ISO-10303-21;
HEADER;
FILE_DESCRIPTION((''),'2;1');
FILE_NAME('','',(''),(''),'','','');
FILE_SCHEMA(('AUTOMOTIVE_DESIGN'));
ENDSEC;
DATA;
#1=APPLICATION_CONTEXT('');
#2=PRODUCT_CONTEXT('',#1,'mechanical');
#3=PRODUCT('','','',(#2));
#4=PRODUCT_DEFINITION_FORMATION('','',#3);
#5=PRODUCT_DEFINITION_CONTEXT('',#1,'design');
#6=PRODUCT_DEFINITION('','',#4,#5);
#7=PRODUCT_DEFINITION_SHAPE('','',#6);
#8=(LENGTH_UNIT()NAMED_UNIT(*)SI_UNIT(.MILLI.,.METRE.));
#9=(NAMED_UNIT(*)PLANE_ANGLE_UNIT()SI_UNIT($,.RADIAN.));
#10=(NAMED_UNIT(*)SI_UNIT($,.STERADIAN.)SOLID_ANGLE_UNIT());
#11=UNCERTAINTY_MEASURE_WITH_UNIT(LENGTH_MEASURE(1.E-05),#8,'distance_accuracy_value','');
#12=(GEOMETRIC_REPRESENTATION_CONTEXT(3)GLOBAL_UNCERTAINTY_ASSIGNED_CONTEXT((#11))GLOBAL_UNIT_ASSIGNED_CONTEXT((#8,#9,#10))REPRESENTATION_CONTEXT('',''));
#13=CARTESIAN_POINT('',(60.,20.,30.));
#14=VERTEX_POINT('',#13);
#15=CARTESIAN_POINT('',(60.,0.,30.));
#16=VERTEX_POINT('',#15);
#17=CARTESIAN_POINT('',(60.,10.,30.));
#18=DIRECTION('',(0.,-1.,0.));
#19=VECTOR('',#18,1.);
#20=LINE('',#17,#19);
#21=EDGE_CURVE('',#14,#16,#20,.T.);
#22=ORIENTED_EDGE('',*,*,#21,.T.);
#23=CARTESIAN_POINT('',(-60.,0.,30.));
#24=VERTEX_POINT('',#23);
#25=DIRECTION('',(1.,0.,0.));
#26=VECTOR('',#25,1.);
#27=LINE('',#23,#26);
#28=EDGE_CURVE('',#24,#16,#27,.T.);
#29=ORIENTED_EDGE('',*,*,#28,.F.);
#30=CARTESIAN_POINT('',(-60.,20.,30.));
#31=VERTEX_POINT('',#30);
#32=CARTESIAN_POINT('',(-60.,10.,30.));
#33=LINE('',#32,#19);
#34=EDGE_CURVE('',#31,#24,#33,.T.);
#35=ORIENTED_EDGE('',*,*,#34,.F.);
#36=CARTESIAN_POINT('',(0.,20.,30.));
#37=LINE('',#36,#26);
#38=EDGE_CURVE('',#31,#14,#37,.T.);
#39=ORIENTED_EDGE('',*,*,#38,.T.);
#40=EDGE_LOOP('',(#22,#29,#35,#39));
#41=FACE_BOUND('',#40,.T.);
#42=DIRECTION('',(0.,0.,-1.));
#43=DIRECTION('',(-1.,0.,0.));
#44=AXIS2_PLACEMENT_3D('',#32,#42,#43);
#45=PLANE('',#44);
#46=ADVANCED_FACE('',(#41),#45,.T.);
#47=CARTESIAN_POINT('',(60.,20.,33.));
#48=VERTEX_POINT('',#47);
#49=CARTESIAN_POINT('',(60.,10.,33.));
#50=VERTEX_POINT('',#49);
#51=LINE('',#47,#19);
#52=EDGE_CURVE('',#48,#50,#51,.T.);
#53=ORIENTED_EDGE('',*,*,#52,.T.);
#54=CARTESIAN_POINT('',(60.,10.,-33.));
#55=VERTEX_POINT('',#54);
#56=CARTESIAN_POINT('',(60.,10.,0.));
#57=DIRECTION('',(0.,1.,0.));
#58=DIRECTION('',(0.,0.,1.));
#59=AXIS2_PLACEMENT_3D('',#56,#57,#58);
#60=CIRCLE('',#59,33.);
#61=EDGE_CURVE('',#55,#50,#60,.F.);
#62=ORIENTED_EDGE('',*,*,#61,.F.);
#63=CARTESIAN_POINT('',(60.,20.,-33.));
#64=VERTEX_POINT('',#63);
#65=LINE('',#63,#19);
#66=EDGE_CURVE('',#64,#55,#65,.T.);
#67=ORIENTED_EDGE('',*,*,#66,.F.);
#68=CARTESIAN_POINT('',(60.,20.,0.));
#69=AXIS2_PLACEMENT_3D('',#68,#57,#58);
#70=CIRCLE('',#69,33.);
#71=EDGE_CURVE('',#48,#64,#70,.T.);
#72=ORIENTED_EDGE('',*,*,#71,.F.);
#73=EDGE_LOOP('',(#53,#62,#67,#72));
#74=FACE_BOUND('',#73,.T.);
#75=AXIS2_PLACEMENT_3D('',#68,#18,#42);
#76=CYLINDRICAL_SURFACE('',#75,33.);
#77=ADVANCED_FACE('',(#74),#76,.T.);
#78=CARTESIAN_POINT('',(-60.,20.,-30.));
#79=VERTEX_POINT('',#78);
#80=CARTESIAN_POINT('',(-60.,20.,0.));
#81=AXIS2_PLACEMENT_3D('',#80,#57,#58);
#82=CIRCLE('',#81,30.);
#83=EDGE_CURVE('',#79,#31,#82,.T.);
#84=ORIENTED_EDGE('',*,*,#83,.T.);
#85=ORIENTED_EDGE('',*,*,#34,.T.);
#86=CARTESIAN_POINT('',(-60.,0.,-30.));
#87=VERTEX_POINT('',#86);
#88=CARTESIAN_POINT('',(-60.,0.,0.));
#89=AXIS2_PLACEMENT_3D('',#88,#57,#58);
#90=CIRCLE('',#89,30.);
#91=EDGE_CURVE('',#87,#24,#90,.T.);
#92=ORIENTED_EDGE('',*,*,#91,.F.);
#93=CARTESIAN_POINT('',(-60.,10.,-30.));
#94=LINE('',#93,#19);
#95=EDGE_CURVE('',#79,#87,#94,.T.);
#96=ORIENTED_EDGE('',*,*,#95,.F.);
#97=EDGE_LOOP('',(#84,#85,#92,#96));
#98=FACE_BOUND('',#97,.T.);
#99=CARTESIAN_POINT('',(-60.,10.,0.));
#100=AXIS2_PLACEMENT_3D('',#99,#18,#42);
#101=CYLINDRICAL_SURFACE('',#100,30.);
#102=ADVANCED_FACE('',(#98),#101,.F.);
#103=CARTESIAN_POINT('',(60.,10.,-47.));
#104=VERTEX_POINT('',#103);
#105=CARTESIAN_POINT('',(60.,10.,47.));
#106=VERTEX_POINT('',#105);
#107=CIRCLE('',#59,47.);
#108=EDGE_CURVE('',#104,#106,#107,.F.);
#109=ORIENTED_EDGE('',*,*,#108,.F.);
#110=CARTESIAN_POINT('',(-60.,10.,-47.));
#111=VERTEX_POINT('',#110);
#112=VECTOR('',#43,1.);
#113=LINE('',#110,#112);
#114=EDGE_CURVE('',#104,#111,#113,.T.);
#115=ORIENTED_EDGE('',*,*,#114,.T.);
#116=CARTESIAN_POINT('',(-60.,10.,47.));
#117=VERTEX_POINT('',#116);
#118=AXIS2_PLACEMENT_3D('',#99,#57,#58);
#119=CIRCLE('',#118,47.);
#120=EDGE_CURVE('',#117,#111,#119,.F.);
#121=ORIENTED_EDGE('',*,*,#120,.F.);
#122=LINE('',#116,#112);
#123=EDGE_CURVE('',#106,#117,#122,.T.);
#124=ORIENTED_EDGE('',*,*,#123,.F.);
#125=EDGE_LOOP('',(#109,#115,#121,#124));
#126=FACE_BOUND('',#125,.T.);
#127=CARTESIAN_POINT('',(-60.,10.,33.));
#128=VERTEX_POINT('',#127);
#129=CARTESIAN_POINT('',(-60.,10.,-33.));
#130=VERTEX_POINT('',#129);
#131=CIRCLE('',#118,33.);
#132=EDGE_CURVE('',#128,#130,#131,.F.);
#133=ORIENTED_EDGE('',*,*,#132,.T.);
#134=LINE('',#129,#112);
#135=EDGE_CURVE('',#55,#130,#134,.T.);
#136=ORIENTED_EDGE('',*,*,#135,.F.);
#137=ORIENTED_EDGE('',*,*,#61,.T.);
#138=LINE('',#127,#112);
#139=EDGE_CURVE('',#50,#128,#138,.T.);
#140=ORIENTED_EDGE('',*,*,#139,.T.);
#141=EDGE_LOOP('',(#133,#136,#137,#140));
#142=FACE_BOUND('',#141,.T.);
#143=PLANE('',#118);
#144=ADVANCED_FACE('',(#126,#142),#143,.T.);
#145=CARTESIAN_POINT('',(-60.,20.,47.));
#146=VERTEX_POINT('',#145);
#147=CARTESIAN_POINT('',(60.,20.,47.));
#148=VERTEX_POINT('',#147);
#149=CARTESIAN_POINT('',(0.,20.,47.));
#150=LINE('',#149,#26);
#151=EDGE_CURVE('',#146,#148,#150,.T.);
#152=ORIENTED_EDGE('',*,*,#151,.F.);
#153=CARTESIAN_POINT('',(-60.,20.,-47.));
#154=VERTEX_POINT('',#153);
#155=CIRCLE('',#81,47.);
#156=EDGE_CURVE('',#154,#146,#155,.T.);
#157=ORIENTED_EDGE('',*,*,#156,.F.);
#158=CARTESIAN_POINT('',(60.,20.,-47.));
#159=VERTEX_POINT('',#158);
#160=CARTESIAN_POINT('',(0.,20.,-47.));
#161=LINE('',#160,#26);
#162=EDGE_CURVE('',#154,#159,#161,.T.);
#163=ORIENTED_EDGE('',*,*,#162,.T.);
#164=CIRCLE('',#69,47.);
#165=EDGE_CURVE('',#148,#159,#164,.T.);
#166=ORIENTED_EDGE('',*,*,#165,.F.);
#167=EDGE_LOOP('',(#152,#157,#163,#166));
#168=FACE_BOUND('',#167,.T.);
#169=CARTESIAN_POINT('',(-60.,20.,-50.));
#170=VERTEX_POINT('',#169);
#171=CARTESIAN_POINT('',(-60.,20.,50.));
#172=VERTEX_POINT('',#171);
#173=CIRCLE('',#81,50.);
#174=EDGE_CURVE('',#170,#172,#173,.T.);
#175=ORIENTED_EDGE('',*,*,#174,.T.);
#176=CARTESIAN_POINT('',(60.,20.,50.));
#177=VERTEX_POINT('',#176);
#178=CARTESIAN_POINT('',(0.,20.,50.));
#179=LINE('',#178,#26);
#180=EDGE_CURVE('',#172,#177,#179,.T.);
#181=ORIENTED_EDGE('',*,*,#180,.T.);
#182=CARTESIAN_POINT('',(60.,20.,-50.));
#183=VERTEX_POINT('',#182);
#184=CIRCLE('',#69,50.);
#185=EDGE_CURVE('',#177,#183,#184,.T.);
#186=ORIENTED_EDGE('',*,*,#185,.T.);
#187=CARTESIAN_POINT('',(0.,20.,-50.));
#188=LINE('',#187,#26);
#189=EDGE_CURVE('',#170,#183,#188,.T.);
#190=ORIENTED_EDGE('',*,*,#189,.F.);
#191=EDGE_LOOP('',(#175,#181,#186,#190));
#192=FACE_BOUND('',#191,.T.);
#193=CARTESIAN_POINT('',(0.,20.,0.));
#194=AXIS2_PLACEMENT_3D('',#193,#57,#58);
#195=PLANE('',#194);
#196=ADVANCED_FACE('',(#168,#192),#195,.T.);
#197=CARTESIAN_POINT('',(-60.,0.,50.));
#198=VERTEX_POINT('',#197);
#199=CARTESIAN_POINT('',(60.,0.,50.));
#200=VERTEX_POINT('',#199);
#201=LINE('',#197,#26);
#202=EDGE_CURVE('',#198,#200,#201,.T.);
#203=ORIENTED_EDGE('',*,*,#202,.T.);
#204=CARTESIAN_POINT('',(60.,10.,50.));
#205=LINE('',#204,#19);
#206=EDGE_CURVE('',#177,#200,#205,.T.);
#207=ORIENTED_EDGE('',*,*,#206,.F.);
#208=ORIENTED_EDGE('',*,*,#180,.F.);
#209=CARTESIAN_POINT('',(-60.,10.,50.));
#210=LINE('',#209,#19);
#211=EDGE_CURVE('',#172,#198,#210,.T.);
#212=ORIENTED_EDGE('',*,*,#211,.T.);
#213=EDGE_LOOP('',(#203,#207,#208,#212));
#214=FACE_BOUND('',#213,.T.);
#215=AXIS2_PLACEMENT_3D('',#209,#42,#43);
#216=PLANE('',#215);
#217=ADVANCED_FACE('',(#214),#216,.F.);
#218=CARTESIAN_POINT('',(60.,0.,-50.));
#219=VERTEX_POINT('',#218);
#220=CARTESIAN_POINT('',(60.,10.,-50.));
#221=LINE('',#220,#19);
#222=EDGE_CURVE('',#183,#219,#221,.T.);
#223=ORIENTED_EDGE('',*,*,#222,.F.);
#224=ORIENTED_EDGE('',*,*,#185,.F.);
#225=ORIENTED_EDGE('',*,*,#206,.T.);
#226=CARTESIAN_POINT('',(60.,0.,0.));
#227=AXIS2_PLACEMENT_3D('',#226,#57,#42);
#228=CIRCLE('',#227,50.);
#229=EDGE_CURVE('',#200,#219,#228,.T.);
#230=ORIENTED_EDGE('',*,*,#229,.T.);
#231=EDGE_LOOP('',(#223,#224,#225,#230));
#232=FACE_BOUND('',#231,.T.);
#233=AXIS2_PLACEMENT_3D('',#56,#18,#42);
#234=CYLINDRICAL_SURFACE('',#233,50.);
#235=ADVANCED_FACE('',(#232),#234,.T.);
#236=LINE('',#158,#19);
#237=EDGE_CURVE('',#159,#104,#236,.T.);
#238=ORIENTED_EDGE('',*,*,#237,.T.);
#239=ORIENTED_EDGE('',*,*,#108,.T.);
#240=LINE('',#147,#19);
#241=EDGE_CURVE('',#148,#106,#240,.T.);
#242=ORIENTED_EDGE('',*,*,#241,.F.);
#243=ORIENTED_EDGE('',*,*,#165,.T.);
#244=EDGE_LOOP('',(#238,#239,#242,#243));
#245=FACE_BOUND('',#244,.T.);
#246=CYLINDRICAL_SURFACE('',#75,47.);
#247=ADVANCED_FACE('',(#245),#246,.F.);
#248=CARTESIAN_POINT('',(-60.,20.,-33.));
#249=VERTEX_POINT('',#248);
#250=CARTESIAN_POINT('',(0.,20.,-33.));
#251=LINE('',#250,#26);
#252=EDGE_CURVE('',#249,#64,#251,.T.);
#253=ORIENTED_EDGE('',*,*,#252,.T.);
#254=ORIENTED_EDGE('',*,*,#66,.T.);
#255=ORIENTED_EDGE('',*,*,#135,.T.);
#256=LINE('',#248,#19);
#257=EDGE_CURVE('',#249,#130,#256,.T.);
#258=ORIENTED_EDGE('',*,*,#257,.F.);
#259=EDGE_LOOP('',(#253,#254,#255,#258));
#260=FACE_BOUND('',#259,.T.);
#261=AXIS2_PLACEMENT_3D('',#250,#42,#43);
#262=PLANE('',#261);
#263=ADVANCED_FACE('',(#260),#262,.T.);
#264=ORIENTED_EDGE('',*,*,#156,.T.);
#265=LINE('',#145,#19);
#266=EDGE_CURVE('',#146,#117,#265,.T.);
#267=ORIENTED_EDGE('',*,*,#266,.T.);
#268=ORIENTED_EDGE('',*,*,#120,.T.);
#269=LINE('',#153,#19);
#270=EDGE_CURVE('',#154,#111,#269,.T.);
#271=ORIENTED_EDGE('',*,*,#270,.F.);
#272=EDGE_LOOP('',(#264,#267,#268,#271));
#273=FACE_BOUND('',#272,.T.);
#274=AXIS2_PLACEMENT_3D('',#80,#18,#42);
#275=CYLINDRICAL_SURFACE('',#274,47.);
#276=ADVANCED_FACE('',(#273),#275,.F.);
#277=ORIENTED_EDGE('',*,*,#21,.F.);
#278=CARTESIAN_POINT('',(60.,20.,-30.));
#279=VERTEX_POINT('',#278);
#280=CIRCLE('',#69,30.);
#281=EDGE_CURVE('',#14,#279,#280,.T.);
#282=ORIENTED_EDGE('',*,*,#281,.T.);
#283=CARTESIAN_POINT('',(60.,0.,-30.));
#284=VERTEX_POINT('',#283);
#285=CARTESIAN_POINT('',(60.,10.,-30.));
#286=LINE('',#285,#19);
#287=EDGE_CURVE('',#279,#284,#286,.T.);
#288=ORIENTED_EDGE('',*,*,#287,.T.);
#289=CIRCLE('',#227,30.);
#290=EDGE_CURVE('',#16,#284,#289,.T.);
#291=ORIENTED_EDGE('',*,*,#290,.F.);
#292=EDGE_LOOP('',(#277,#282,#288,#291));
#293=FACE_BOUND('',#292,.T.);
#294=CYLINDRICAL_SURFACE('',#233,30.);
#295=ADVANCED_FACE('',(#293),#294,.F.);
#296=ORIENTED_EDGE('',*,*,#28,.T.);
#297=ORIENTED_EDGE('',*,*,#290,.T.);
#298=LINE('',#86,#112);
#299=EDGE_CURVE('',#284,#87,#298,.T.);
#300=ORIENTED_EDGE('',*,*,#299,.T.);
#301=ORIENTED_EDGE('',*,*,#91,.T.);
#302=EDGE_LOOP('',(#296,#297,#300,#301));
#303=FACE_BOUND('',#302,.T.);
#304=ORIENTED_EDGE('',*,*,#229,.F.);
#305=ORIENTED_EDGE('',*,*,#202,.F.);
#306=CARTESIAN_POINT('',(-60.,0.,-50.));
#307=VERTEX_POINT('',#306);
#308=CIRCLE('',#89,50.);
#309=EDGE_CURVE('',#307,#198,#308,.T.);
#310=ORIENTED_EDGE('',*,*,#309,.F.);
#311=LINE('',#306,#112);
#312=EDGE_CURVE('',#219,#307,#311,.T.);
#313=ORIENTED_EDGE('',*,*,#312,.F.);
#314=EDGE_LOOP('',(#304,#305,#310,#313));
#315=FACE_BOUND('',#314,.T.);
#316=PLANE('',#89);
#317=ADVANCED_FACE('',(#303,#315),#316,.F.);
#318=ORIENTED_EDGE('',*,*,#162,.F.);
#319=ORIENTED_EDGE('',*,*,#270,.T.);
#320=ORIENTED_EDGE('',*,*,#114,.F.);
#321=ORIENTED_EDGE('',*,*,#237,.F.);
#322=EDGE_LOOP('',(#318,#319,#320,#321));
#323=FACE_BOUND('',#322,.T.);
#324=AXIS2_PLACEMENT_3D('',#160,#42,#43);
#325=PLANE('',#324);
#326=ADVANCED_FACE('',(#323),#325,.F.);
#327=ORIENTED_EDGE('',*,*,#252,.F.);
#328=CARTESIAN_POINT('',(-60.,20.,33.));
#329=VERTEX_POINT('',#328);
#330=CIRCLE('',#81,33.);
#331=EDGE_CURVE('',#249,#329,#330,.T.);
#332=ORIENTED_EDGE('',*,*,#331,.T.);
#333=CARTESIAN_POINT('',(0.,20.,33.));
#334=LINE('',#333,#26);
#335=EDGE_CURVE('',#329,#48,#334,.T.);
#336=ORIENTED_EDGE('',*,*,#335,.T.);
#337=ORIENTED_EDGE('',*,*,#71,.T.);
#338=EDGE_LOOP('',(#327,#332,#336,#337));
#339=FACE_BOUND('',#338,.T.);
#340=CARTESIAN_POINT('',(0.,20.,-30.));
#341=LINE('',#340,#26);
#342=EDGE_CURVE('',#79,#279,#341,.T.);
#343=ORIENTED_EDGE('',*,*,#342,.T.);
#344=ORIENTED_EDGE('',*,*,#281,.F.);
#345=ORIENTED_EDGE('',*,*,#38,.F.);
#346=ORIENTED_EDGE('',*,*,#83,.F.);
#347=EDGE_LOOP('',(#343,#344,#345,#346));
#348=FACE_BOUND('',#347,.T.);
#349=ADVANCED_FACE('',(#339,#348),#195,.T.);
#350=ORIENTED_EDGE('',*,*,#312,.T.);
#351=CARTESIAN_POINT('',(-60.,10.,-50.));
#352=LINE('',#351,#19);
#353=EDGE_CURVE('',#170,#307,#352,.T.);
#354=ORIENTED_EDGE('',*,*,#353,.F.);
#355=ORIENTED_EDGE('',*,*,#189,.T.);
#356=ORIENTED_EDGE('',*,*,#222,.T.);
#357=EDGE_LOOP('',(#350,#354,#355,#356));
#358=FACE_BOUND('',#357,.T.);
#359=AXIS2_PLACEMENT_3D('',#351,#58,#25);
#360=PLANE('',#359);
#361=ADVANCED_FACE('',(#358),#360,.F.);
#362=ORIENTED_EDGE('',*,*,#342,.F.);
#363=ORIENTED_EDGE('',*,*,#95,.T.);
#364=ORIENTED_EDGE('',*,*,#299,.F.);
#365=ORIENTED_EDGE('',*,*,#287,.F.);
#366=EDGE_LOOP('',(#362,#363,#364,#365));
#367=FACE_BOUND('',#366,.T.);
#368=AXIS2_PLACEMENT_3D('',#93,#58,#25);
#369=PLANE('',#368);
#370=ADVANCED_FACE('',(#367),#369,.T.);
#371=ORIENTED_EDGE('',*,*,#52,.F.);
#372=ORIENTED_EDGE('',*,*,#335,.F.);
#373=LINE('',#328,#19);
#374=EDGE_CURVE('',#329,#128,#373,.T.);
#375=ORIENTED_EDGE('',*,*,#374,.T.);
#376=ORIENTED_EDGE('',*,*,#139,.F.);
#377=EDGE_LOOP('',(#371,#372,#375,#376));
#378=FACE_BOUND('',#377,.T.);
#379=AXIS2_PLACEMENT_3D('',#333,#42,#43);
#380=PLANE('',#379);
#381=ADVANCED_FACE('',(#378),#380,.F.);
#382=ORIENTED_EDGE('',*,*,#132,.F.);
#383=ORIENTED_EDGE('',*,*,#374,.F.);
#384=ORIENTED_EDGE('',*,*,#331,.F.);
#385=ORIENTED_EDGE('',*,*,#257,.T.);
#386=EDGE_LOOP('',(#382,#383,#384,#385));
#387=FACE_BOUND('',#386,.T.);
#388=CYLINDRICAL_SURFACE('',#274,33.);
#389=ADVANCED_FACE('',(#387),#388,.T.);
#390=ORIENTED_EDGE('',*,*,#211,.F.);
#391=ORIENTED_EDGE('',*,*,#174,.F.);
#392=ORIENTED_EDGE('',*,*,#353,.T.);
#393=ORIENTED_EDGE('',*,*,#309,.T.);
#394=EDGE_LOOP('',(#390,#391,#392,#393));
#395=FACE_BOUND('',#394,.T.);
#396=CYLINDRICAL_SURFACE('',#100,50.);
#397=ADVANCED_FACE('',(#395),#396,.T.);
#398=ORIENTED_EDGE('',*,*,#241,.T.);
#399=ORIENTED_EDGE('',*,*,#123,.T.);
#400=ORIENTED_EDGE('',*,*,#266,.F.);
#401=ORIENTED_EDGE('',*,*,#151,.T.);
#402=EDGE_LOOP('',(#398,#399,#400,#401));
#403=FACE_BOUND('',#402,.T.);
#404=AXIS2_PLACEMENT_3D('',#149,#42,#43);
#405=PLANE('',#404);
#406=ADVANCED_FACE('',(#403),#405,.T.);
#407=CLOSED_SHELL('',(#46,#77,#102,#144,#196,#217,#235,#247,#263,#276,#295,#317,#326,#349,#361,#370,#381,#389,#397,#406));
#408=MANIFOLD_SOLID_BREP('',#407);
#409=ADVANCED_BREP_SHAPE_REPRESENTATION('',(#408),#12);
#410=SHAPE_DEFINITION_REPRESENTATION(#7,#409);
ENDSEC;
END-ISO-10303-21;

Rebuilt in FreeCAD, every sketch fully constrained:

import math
import FreeCAD as App
import Part
import Sketcher

V = App.Vector

doc = App.newDocument("Part")
body = doc.addObject("PartDesign::Body", "Body")

# Sketch on XZ plane
sketch1 = doc.addObject("Sketcher::SketchObject", "Sketch")
body.addObject(sketch1)
sketch1.AttachmentSupport = (doc.XZ_Plane, [""])
sketch1.MapMode = "FlatFace"
sketch1.addGeometry([
    Part.LineSegment(V(60, -50, 0), V(-60, -50, 0)),  # 0
    Part.ArcOfCircle(Part.Circle(V(-60, 0, 0), V(0, 0, 1), 50), math.radians(90), math.radians(270)),  # 1
    Part.LineSegment(V(-60, 50, 0), V(60, 50, 0)),  # 2
    Part.ArcOfCircle(Part.Circle(V(60, 0, 0), V(0, 0, 1), 50), math.radians(-90), math.radians(90)),  # 3
    Part.ArcOfCircle(Part.Circle(V(-60, 0, 0), V(0, 0, 1), 30), math.radians(90), math.radians(270)),  # 4
    Part.LineSegment(V(-60, -30, 0), V(60, -30, 0)),  # 5
    Part.ArcOfCircle(Part.Circle(V(60, 0, 0), V(0, 0, 1), 30), math.radians(-90), math.radians(90)),  # 6
    Part.LineSegment(V(60, 30, 0), V(-60, 30, 0)),  # 7
], False)
sketch1.addConstraint([
    Sketcher.Constraint("Tangent", 0, 2, 1, 2),
    Sketcher.Constraint("Tangent", 1, 1, 2, 1),
    Sketcher.Constraint("Tangent", 2, 2, 3, 2),
    Sketcher.Constraint("Tangent", 3, 1, 0, 1),
    Sketcher.Constraint("Tangent", 4, 2, 5, 1),
    Sketcher.Constraint("Tangent", 5, 2, 6, 1),
    Sketcher.Constraint("Tangent", 6, 2, 7, 1),
    Sketcher.Constraint("Tangent", 7, 2, 4, 1),
    Sketcher.Constraint("Horizontal", 0),
    Sketcher.Constraint("Horizontal", 2),
    Sketcher.Constraint("Horizontal", 5),
    Sketcher.Constraint("Horizontal", 7),
    Sketcher.Constraint("Coincident", 4, 3, 1, 3),
    Sketcher.Constraint("Symmetric", 1, 3, 3, 3, -1, 1),
    Sketcher.Constraint("Vertical", 6, 3, 2, 2),
    Sketcher.Constraint("Radius", 1, 50.0),
    Sketcher.Constraint("Radius", 4, 30.0),
    Sketcher.Constraint("DistanceX", 0, 2, 0, 1, 120.0),
])
pad1 = doc.addObject("PartDesign::Pad", "Pad")
body.addObject(pad1)
pad1.Profile = sketch1
pad1.Length = 10
pad1.Reversed = True

# Sketch on XZ plane
sketch2 = doc.addObject("Sketcher::SketchObject", "Sketch001")
body.addObject(sketch2)
sketch2.AttachmentSupport = (doc.XZ_Plane, [""])
sketch2.MapMode = "FlatFace"
sketch2.addGeometry([
    Part.LineSegment(V(60, -50, 0), V(-60, -50, 0)),  # 0
    Part.ArcOfCircle(Part.Circle(V(-60, 0, 0), V(0, 0, 1), 50), math.radians(90), math.radians(270)),  # 1
    Part.LineSegment(V(-60, 50, 0), V(60, 50, 0)),  # 2
    Part.ArcOfCircle(Part.Circle(V(60, 0, 0), V(0, 0, 1), 50), math.radians(-90), math.radians(90)),  # 3
    Part.LineSegment(V(60, 47, 0), V(-60, 47, 0)),  # 4
    Part.ArcOfCircle(Part.Circle(V(-60, 0, 0), V(0, 0, 1), 47), math.radians(90), math.radians(270)),  # 5
    Part.LineSegment(V(-60, -47, 0), V(60, -47, 0)),  # 6
    Part.ArcOfCircle(Part.Circle(V(60, 0, 0), V(0, 0, 1), 47), math.radians(-90), math.radians(90)),  # 7
    Part.LineSegment(V(60, -33, 0), V(-60, -33, 0)),  # 8
    Part.ArcOfCircle(Part.Circle(V(-60, 0, 0), V(0, 0, 1), 33), math.radians(90), math.radians(270)),  # 9
    Part.LineSegment(V(-60, 33, 0), V(60, 33, 0)),  # 10
    Part.ArcOfCircle(Part.Circle(V(60, 0, 0), V(0, 0, 1), 33), math.radians(-90), math.radians(90)),  # 11
    Part.LineSegment(V(-60, -30, 0), V(60, -30, 0)),  # 12
    Part.ArcOfCircle(Part.Circle(V(60, 0, 0), V(0, 0, 1), 30), math.radians(-90), math.radians(90)),  # 13
    Part.LineSegment(V(60, 30, 0), V(-60, 30, 0)),  # 14
    Part.ArcOfCircle(Part.Circle(V(-60, 0, 0), V(0, 0, 1), 30), math.radians(90), math.radians(270)),  # 15
], False)
sketch2.addConstraint([
    Sketcher.Constraint("Tangent", 0, 2, 1, 2),
    Sketcher.Constraint("Tangent", 1, 1, 2, 1),
    Sketcher.Constraint("Tangent", 2, 2, 3, 2),
    Sketcher.Constraint("Tangent", 3, 1, 0, 1),
    Sketcher.Constraint("Tangent", 4, 2, 5, 1),
    Sketcher.Constraint("Tangent", 5, 2, 6, 1),
    Sketcher.Constraint("Tangent", 6, 2, 7, 1),
    Sketcher.Constraint("Tangent", 7, 2, 4, 1),
    Sketcher.Constraint("Tangent", 8, 2, 9, 2),
    Sketcher.Constraint("Tangent", 9, 1, 10, 1),
    Sketcher.Constraint("Tangent", 10, 2, 11, 2),
    Sketcher.Constraint("Tangent", 11, 1, 8, 1),
    Sketcher.Constraint("Tangent", 12, 2, 13, 1),
    Sketcher.Constraint("Tangent", 13, 2, 14, 1),
    Sketcher.Constraint("Tangent", 14, 2, 15, 1),
    Sketcher.Constraint("Tangent", 15, 2, 12, 1),
    Sketcher.Constraint("Horizontal", 0),
    Sketcher.Constraint("Horizontal", 2),
    Sketcher.Constraint("Horizontal", 4),
    Sketcher.Constraint("Horizontal", 6),
    Sketcher.Constraint("Horizontal", 8),
    Sketcher.Constraint("Horizontal", 10),
    Sketcher.Constraint("Horizontal", 12),
    Sketcher.Constraint("Horizontal", 14),
    Sketcher.Constraint("Coincident", 5, 3, 1, 3),
    Sketcher.Constraint("Coincident", 9, 3, 1, 3),
    Sketcher.Constraint("Coincident", 13, 3, 3, 3),
    Sketcher.Constraint("Symmetric", 1, 3, 3, 3, -1, 1),
    Sketcher.Constraint("Vertical", 15, 3, 0, 2),
    Sketcher.Constraint("Vertical", 3, 1, 6, 2),
    Sketcher.Constraint("Vertical", 7, 2, 10, 2),
    Sketcher.Constraint("Radius", 1, 50.0),
    Sketcher.Constraint("Radius", 5, 47.0),
    Sketcher.Constraint("Radius", 9, 33.0),
    Sketcher.Constraint("Radius", 13, 30.0),
    Sketcher.Constraint("DistanceX", 0, 2, 0, 1, 120.0),
])
pad2 = doc.addObject("PartDesign::Pad", "Pad001")
body.addObject(pad2)
pad2.Profile = sketch2
pad2.Length = 20
pad2.Reversed = True

doc.recompute()
